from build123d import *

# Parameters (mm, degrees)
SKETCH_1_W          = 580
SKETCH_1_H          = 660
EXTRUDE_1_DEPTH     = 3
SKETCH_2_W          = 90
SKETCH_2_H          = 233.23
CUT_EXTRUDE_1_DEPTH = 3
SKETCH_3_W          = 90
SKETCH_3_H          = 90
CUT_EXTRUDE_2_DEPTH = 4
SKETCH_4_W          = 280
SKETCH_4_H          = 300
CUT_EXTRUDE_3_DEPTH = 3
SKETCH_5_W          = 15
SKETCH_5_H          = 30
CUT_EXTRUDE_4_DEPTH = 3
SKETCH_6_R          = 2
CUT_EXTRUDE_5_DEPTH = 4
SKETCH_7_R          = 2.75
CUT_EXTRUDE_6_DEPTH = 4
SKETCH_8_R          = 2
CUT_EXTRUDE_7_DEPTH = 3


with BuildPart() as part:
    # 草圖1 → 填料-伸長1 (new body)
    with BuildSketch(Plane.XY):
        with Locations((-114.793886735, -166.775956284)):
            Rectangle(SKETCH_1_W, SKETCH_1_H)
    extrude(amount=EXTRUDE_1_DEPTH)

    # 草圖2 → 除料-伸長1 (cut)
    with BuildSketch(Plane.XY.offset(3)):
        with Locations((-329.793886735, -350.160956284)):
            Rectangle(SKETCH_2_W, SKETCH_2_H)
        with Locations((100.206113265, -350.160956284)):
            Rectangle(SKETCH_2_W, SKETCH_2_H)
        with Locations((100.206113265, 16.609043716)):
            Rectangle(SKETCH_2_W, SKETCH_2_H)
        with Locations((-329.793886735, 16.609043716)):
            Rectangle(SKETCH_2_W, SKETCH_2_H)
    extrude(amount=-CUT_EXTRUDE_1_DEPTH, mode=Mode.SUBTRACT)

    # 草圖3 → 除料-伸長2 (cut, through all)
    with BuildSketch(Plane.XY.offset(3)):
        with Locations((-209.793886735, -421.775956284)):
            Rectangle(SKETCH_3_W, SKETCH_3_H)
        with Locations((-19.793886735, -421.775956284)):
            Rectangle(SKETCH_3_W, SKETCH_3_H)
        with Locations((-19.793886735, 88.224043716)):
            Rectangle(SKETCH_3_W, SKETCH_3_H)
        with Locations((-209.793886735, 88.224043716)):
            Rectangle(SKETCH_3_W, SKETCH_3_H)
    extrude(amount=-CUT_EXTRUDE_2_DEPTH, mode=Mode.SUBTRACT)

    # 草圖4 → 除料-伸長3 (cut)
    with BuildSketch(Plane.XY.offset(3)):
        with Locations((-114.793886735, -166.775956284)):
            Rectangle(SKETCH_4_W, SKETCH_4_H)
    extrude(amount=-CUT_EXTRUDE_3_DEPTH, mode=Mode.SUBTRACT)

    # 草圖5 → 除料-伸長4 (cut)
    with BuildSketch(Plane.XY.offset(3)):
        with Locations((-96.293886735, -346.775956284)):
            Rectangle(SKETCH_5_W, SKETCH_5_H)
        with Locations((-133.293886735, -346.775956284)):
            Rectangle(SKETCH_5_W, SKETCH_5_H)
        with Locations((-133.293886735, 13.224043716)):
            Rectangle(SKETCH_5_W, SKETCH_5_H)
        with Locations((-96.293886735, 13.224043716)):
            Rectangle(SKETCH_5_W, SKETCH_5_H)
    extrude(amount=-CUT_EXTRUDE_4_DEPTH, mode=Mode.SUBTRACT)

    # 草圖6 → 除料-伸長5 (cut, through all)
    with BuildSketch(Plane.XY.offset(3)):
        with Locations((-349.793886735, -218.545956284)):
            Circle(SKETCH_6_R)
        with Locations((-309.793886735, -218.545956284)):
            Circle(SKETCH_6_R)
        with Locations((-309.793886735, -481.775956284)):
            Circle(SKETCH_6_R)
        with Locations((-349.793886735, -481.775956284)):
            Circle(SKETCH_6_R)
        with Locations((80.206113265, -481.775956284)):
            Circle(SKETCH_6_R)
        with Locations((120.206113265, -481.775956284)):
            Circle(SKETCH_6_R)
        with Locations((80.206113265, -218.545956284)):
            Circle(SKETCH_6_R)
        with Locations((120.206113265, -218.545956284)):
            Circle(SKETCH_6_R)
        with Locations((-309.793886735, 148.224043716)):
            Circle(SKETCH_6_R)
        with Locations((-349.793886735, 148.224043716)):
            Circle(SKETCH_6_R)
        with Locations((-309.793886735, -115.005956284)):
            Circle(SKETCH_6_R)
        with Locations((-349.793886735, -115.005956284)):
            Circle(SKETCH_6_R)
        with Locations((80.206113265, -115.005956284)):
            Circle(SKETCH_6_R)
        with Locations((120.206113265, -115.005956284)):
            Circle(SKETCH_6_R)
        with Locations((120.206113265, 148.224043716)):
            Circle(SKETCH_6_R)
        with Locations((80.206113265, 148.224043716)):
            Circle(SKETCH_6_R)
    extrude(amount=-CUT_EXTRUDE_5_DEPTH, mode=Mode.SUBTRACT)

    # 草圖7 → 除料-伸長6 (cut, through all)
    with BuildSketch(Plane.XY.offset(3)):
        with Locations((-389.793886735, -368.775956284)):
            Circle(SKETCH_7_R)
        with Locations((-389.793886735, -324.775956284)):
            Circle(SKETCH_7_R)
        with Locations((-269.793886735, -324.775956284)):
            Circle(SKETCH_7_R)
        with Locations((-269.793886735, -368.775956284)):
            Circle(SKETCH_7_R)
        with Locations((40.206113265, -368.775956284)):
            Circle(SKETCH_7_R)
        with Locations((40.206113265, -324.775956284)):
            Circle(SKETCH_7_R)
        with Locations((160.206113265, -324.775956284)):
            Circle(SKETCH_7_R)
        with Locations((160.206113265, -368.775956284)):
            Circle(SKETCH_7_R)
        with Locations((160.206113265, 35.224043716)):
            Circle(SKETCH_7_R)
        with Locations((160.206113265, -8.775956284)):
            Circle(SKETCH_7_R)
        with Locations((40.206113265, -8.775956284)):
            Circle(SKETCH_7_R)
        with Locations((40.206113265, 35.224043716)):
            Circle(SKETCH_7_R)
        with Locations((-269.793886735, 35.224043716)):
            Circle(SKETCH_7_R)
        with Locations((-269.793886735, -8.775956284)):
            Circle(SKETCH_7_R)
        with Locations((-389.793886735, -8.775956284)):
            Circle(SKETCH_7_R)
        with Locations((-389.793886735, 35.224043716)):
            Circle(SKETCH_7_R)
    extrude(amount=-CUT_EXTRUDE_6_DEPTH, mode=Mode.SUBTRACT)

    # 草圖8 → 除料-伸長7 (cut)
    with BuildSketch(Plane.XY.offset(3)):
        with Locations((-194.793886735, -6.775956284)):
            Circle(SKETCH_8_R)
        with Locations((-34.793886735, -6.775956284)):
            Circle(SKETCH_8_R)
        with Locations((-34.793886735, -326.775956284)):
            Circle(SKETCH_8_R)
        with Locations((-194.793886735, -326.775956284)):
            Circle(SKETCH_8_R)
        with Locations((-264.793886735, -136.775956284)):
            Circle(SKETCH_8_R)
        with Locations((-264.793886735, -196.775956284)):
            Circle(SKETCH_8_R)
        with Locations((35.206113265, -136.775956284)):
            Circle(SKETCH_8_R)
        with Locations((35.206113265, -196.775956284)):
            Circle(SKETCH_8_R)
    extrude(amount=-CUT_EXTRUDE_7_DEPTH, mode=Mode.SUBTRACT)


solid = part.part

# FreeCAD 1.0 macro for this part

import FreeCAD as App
import Part
import Sketcher

doc = App.newDocument("Part")
body = doc.addObject("PartDesign::Body", "Body")

# Sketch on XY plane
sketch1 = body.newObject("Sketcher::SketchObject", "Sketch")
sketch1.AttachmentSupport = (doc.getObject("XY_Plane"), [""])
sketch1.MapMode = "FlatFace"
sketch1.addGeometry(Part.LineSegment(App.Vector(-405, 163, 0), App.Vector(-405, -497, 0)), False)
sketch1.addGeometry(Part.LineSegment(App.Vector(-405, -497, 0), App.Vector(175, -497, 0)), False)
sketch1.addGeometry(Part.LineSegment(App.Vector(175, -497, 0), App.Vector(175, 163, 0)), False)
sketch1.addGeometry(Part.LineSegment(App.Vector(175, 163, 0), App.Vector(-405, 163, 0)), False)
sketch1.addConstraint(Sketcher.Constraint("Coincident", 0, 2, 1, 1))
sketch1.addConstraint(Sketcher.Constraint("Coincident", 1, 2, 2, 1))
sketch1.addConstraint(Sketcher.Constraint("Coincident", 2, 2, 3, 1))
sketch1.addConstraint(Sketcher.Constraint("Coincident", 3, 2, 0, 1))
sketch1.addConstraint(Sketcher.Constraint("Vertical", 0))
sketch1.addConstraint(Sketcher.Constraint("Horizontal", 1))
sketch1.addConstraint(Sketcher.Constraint("Vertical", 2))
sketch1.addConstraint(Sketcher.Constraint("Horizontal", 3))
sketch1.addConstraint(Sketcher.Constraint("DistanceX", 1, 1, 1, 2, 580.0))
sketch1.addConstraint(Sketcher.Constraint("DistanceY", 0, 2, 0, 1, 660.0))
sketch1.addConstraint(Sketcher.Constraint("DistanceX", 0, 2, -1, 1, 404.793887))
sketch1.addConstraint(Sketcher.Constraint("DistanceY", 0, 2, -1, 1, 496.775956))
pad1 = body.newObject("PartDesign::Pad", "Pad")
pad1.Profile = sketch1
pad1.Length = 3

# Sketch on XY plane
sketch2 = body.newObject("Sketcher::SketchObject", "Sketch001")
sketch2.AttachmentSupport = (doc.getObject("XY_Plane"), [""])
sketch2.MapMode = "FlatFace"
sketch2.AttachmentOffset = App.Placement(App.Vector(0, 0, 3), App.Rotation())
sketch2.addGeometry(Part.LineSegment(App.Vector(-375, -234, 0), App.Vector(-375, -467, 0)), False)
sketch2.addGeometry(Part.LineSegment(App.Vector(-375, -467, 0), App.Vector(-285, -467, 0)), False)
sketch2.addGeometry(Part.LineSegment(App.Vector(-285, -467, 0), App.Vector(-285, -234, 0)), False)
sketch2.addGeometry(Part.LineSegment(App.Vector(-285, -234, 0), App.Vector(-375, -234, 0)), False)
sketch2.addGeometry(Part.LineSegment(App.Vector(55, -234, 0), App.Vector(55, -467, 0)), False)
sketch2.addGeometry(Part.LineSegment(App.Vector(55, -467, 0), App.Vector(145, -467, 0)), False)
sketch2.addGeometry(Part.LineSegment(App.Vector(145, -467, 0), App.Vector(145, -234, 0)), False)
sketch2.addGeometry(Part.LineSegment(App.Vector(145, -234, 0), App.Vector(55, -234, 0)), False)
sketch2.addGeometry(Part.LineSegment(App.Vector(55, 133, 0), App.Vector(55, -100, 0)), False)
sketch2.addGeometry(Part.LineSegment(App.Vector(55, -100, 0), App.Vector(145, -100, 0)), False)
sketch2.addGeometry(Part.LineSegment(App.Vector(145, -100, 0), App.Vector(145, 133, 0)), False)
sketch2.addGeometry(Part.LineSegment(App.Vector(145, 133, 0), App.Vector(55, 133, 0)), False)
sketch2.addGeometry(Part.LineSegment(App.Vector(-375, 133, 0), App.Vector(-375, -100, 0)), False)
sketch2.addGeometry(Part.LineSegment(App.Vector(-375, -100, 0), App.Vector(-285, -100, 0)), False)
sketch2.addGeometry(Part.LineSegment(App.Vector(-285, -100, 0), App.Vector(-285, 133, 0)), False)
sketch2.addGeometry(Part.LineSegment(App.Vector(-285, 133, 0), App.Vector(-375, 133, 0)), False)
sketch2.addConstraint(Sketcher.Constraint("Coincident", 0, 2, 1, 1))
sketch2.addConstraint(Sketcher.Constraint("Coincident", 1, 2, 2, 1))
sketch2.addConstraint(Sketcher.Constraint("Coincident", 2, 2, 3, 1))
sketch2.addConstraint(Sketcher.Constraint("Coincident", 3, 2, 0, 1))
sketch2.addConstraint(Sketcher.Constraint("Coincident", 4, 2, 5, 1))
sketch2.addConstraint(Sketcher.Constraint("Coincident", 5, 2, 6, 1))
sketch2.addConstraint(Sketcher.Constraint("Coincident", 6, 2, 7, 1))
sketch2.addConstraint(Sketcher.Constraint("Coincident", 7, 2, 4, 1))
sketch2.addConstraint(Sketcher.Constraint("Coincident", 8, 2, 9, 1))
sketch2.addConstraint(Sketcher.Constraint("Coincident", 9, 2, 10, 1))
sketch2.addConstraint(Sketcher.Constraint("Coincident", 10, 2, 11, 1))
sketch2.addConstraint(Sketcher.Constraint("Coincident", 11, 2, 8, 1))
sketch2.addConstraint(Sketcher.Constraint("Coincident", 12, 2, 13, 1))
sketch2.addConstraint(Sketcher.Constraint("Coincident", 13, 2, 14, 1))
sketch2.addConstraint(Sketcher.Constraint("Coincident", 14, 2, 15, 1))
sketch2.addConstraint(Sketcher.Constraint("Coincident", 15, 2, 12, 1))
sketch2.addConstraint(Sketcher.Constraint("Vertical", 0))
sketch2.addConstraint(Sketcher.Constraint("Horizontal", 1))
sketch2.addConstraint(Sketcher.Constraint("Vertical", 2))
sketch2.addConstraint(Sketcher.Constraint("Horizontal", 3))
sketch2.addConstraint(Sketcher.Constraint("Vertical", 4))
sketch2.addConstraint(Sketcher.Constraint("Horizontal", 5))
sketch2.addConstraint(Sketcher.Constraint("Vertical", 6))
sketch2.addConstraint(Sketcher.Constraint("Horizontal", 7))
sketch2.addConstraint(Sketcher.Constraint("Vertical", 8))
sketch2.addConstraint(Sketcher.Constraint("Horizontal", 9))
sketch2.addConstraint(Sketcher.Constraint("Vertical", 10))
sketch2.addConstraint(Sketcher.Constraint("Horizontal", 11))
sketch2.addConstraint(Sketcher.Constraint("Vertical", 12))
sketch2.addConstraint(Sketcher.Constraint("Horizontal", 13))
sketch2.addConstraint(Sketcher.Constraint("Vertical", 14))
sketch2.addConstraint(Sketcher.Constraint("Horizontal", 15))
sketch2.addConstraint(Sketcher.Constraint("Horizontal", 1, 2, 4, 2))
sketch2.addConstraint(Sketcher.Constraint("Horizontal", 3, 2, 6, 2))
sketch2.addConstraint(Sketcher.Constraint("Horizontal", 9, 2, 12, 2))
sketch2.addConstraint(Sketcher.Constraint("Horizontal", 11, 2, 14, 2))
sketch2.addConstraint(Sketcher.Constraint("Vertical", 7, 2, 8, 2))
sketch2.addConstraint(Sketcher.Constraint("Vertical", 6, 2, 9, 2))
sketch2.addConstraint(Sketcher.Constraint("Vertical", 3, 2, 12, 2))
sketch2.addConstraint(Sketcher.Constraint("Vertical", 2, 2, 13, 2))
sketch2.addConstraint(Sketcher.Constraint("Equal", 3, 5))
sketch2.addConstraint(Sketcher.Constraint("Equal", 6, 8))
sketch2.addConstraint(Sketcher.Constraint("DistanceX", 1, 1, 1, 2, 90.0))
sketch2.addConstraint(Sketcher.Constraint("DistanceX", 1, 2, 4, 2, 340.0))
sketch2.addConstraint(Sketcher.Constraint("DistanceY", 0, 2, 0, 1, 233.23))
sketch2.addConstraint(Sketcher.Constraint("DistanceY", 7, 2, 8, 2, 133.54))
sketch2.addConstraint(Sketcher.Constraint("DistanceX", 0, 2, -1, 1, 374.793887))
sketch2.addConstraint(Sketcher.Constraint("DistanceY", 0, 2, -1, 1, 466.775956))
pocket1 = body.newObject("PartDesign::Pocket", "Pocket")
pocket1.Profile = sketch2
pocket1.Length = 3

# Sketch on XY plane
sketch3 = body.newObject("Sketcher::SketchObject", "Sketch002")
sketch3.AttachmentSupport = (doc.getObject("XY_Plane"), [""])
sketch3.MapMode = "FlatFace"
sketch3.AttachmentOffset = App.Placement(App.Vector(0, 0, 3), App.Rotation())
sketch3.addGeometry(Part.LineSegment(App.Vector(-255, -377, 0), App.Vector(-255, -467, 0)), False)
sketch3.addGeometry(Part.LineSegment(App.Vector(-255, -467, 0), App.Vector(-165, -467, 0)), False)
sketch3.addGeometry(Part.LineSegment(App.Vector(-165, -467, 0), App.Vector(-165, -377, 0)), False)
sketch3.addGeometry(Part.LineSegment(App.Vector(-165, -377, 0), App.Vector(-255, -377, 0)), False)
sketch3.addGeometry(Part.LineSegment(App.Vector(-65, -377, 0), App.Vector(-65, -467, 0)), False)
sketch3.addGeometry(Part.LineSegment(App.Vector(-65, -467, 0), App.Vector(25, -467, 0)), False)
sketch3.addGeometry(Part.LineSegment(App.Vector(25, -467, 0), App.Vector(25, -377, 0)), False)
sketch3.addGeometry(Part.LineSegment(App.Vector(25, -377, 0), App.Vector(-65, -377, 0)), False)
sketch3.addGeometry(Part.LineSegment(App.Vector(-65, 133, 0), App.Vector(-65, 43, 0)), False)
sketch3.addGeometry(Part.LineSegment(App.Vector(-65, 43, 0), App.Vector(25, 43, 0)), False)
sketch3.addGeometry(Part.LineSegment(App.Vector(25, 43, 0), App.Vector(25, 133, 0)), False)
sketch3.addGeometry(Part.LineSegment(App.Vector(25, 133, 0), App.Vector(-65, 133, 0)), False)
sketch3.addGeometry(Part.LineSegment(App.Vector(-255, 133, 0), App.Vector(-255, 43, 0)), False)
sketch3.addGeometry(Part.LineSegment(App.Vector(-255, 43, 0), App.Vector(-165, 43, 0)), False)
sketch3.addGeometry(Part.LineSegment(App.Vector(-165, 43, 0), App.Vector(-165, 133, 0)), False)
sketch3.addGeometry(Part.LineSegment(App.Vector(-165, 133, 0), App.Vector(-255, 133, 0)), False)
sketch3.addConstraint(Sketcher.Constraint("Coincident", 0, 2, 1, 1))
sketch3.addConstraint(Sketcher.Constraint("Coincident", 1, 2, 2, 1))
sketch3.addConstraint(Sketcher.Constraint("Coincident", 2, 2, 3, 1))
sketch3.addConstraint(Sketcher.Constraint("Coincident", 3, 2, 0, 1))
sketch3.addConstraint(Sketcher.Constraint("Coincident", 4, 2, 5, 1))
sketch3.addConstraint(Sketcher.Constraint("Coincident", 5, 2, 6, 1))
sketch3.addConstraint(Sketcher.Constraint("Coincident", 6, 2, 7, 1))
sketch3.addConstraint(Sketcher.Constraint("Coincident", 7, 2, 4, 1))
sketch3.addConstraint(Sketcher.Constraint("Coincident", 8, 2, 9, 1))
sketch3.addConstraint(Sketcher.Constraint("Coincident", 9, 2, 10, 1))
sketch3.addConstraint(Sketcher.Constraint("Coincident", 10, 2, 11, 1))
sketch3.addConstraint(Sketcher.Constraint("Coincident", 11, 2, 8, 1))
sketch3.addConstraint(Sketcher.Constraint("Coincident", 12, 2, 13, 1))
sketch3.addConstraint(Sketcher.Constraint("Coincident", 13, 2, 14, 1))
sketch3.addConstraint(Sketcher.Constraint("Coincident", 14, 2, 15, 1))
sketch3.addConstraint(Sketcher.Constraint("Coincident", 15, 2, 12, 1))
sketch3.addConstraint(Sketcher.Constraint("Vertical", 0))
sketch3.addConstraint(Sketcher.Constraint("Horizontal", 1))
sketch3.addConstraint(Sketcher.Constraint("Vertical", 2))
sketch3.addConstraint(Sketcher.Constraint("Horizontal", 3))
sketch3.addConstraint(Sketcher.Constraint("Vertical", 4))
sketch3.addConstraint(Sketcher.Constraint("Horizontal", 5))
sketch3.addConstraint(Sketcher.Constraint("Vertical", 6))
sketch3.addConstraint(Sketcher.Constraint("Horizontal", 7))
sketch3.addConstraint(Sketcher.Constraint("Vertical", 8))
sketch3.addConstraint(Sketcher.Constraint("Horizontal", 9))
sketch3.addConstraint(Sketcher.Constraint("Vertical", 10))
sketch3.addConstraint(Sketcher.Constraint("Horizontal", 11))
sketch3.addConstraint(Sketcher.Constraint("Vertical", 12))
sketch3.addConstraint(Sketcher.Constraint("Horizontal", 13))
sketch3.addConstraint(Sketcher.Constraint("Vertical", 14))
sketch3.addConstraint(Sketcher.Constraint("Horizontal", 15))
sketch3.addConstraint(Sketcher.Constraint("Horizontal", 1, 2, 4, 2))
sketch3.addConstraint(Sketcher.Constraint("Horizontal", 3, 2, 6, 2))
sketch3.addConstraint(Sketcher.Constraint("Horizontal", 9, 2, 12, 2))
sketch3.addConstraint(Sketcher.Constraint("Horizontal", 11, 2, 14, 2))
sketch3.addConstraint(Sketcher.Constraint("Vertical", 7, 2, 8, 2))
sketch3.addConstraint(Sketcher.Constraint("Vertical", 6, 2, 9, 2))
sketch3.addConstraint(Sketcher.Constraint("Vertical", 3, 2, 12, 2))
sketch3.addConstraint(Sketcher.Constraint("Vertical", 2, 2, 13, 2))
sketch3.addConstraint(Sketcher.Constraint("Equal", 3, 5))
sketch3.addConstraint(Sketcher.Constraint("Equal", 15, 0))
sketch3.addConstraint(Sketcher.Constraint("Equal", 6, 8))
sketch3.addConstraint(Sketcher.Constraint("DistanceX", 1, 1, 1, 2, 90.0))
sketch3.addConstraint(Sketcher.Constraint("DistanceX", 1, 2, 4, 2, 100.0))
sketch3.addConstraint(Sketcher.Constraint("DistanceY", 7, 2, 8, 2, 420.0))
sketch3.addConstraint(Sketcher.Constraint("DistanceX", 0, 2, -1, 1, 254.793887))
sketch3.addConstraint(Sketcher.Constraint("DistanceY", 0, 2, -1, 1, 466.775956))
pocket2 = body.newObject("PartDesign::Pocket", "Pocket001")
pocket2.Profile = sketch3
pocket2.Type = "ThroughAll"

# Sketch on XY plane
sketch4 = body.newObject("Sketcher::SketchObject", "Sketch003")
sketch4.AttachmentSupport = (doc.getObject("XY_Plane"), [""])
sketch4.MapMode = "FlatFace"
sketch4.AttachmentOffset = App.Placement(App.Vector(0, 0, 3), App.Rotation())
sketch4.addGeometry(Part.LineSegment(App.Vector(-255, -17, 0), App.Vector(-255, -317, 0)), False)
sketch4.addGeometry(Part.LineSegment(App.Vector(-255, -317, 0), App.Vector(25, -317, 0)), False)
sketch4.addGeometry(Part.LineSegment(App.Vector(25, -317, 0), App.Vector(25, -17, 0)), False)
sketch4.addGeometry(Part.LineSegment(App.Vector(25, -17, 0), App.Vector(-255, -17, 0)), False)
sketch4.addConstraint(Sketcher.Constraint("Coincident", 0, 2, 1, 1))
sketch4.addConstraint(Sketcher.Constraint("Coincident", 1, 2, 2, 1))
sketch4.addConstraint(Sketcher.Constraint("Coincident", 2, 2, 3, 1))
sketch4.addConstraint(Sketcher.Constraint("Coincident", 3, 2, 0, 1))
sketch4.addConstraint(Sketcher.Constraint("Vertical", 0))
sketch4.addConstraint(Sketcher.Constraint("Horizontal", 1))
sketch4.addConstraint(Sketcher.Constraint("Vertical", 2))
sketch4.addConstraint(Sketcher.Constraint("Horizontal", 3))
sketch4.addConstraint(Sketcher.Constraint("DistanceX", 1, 1, 1, 2, 280.0))
sketch4.addConstraint(Sketcher.Constraint("DistanceY", 0, 2, 0, 1, 300.0))
sketch4.addConstraint(Sketcher.Constraint("DistanceX", 0, 2, -1, 1, 254.793887))
sketch4.addConstraint(Sketcher.Constraint("DistanceY", 0, 2, -1, 1, 316.775956))
pocket3 = body.newObject("PartDesign::Pocket", "Pocket002")
pocket3.Profile = sketch4
pocket3.Length = 3

# Sketch on XY plane
sketch5 = body.newObject("Sketcher::SketchObject", "Sketch004")
sketch5.AttachmentSupport = (doc.getObject("XY_Plane"), [""])
sketch5.MapMode = "FlatFace"
sketch5.AttachmentOffset = App.Placement(App.Vector(0, 0, 3), App.Rotation())
sketch5.addGeometry(Part.LineSegment(App.Vector(-104, -332, 0), App.Vector(-104, -362, 0)), False)
sketch5.addGeometry(Part.LineSegment(App.Vector(-104, -362, 0), App.Vector(-89, -362, 0)), False)
sketch5.addGeometry(Part.LineSegment(App.Vector(-89, -362, 0), App.Vector(-89, -332, 0)), False)
sketch5.addGeometry(Part.LineSegment(App.Vector(-89, -332, 0), App.Vector(-104, -332, 0)), False)
sketch5.addGeometry(Part.LineSegment(App.Vector(-141, -332, 0), App.Vector(-141, -362, 0)), False)
sketch5.addGeometry(Part.LineSegment(App.Vector(-141, -362, 0), App.Vector(-126, -362, 0)), False)
sketch5.addGeometry(Part.LineSegment(App.Vector(-126, -362, 0), App.Vector(-126, -332, 0)), False)
sketch5.addGeometry(Part.LineSegment(App.Vector(-126, -332, 0), App.Vector(-141, -332, 0)), False)
sketch5.addGeometry(Part.LineSegment(App.Vector(-141, 28, 0), App.Vector(-141, -2, 0)), False)
sketch5.addGeometry(Part.LineSegment(App.Vector(-141, -2, 0), App.Vector(-126, -2, 0)), False)
sketch5.addGeometry(Part.LineSegment(App.Vector(-126, -2, 0), App.Vector(-126, 28, 0)), False)
sketch5.addGeometry(Part.LineSegment(App.Vector(-126, 28, 0), App.Vector(-141, 28, 0)), False)
sketch5.addGeometry(Part.LineSegment(App.Vector(-104, 28, 0), App.Vector(-104, -2, 0)), False)
sketch5.addGeometry(Part.LineSegment(App.Vector(-104, -2, 0), App.Vector(-89, -2, 0)), False)
sketch5.addGeometry(Part.LineSegment(App.Vector(-89, -2, 0), App.Vector(-89, 28, 0)), False)
sketch5.addGeometry(Part.LineSegment(App.Vector(-89, 28, 0), App.Vector(-104, 28, 0)), False)
sketch5.addConstraint(Sketcher.Constraint("Coincident", 0, 2, 1, 1))
sketch5.addConstraint(Sketcher.Constraint("Coincident", 1, 2, 2, 1))
sketch5.addConstraint(Sketcher.Constraint("Coincident", 2, 2, 3, 1))
sketch5.addConstraint(Sketcher.Constraint("Coincident", 3, 2, 0, 1))
sketch5.addConstraint(Sketcher.Constraint("Coincident", 4, 2, 5, 1))
sketch5.addConstraint(Sketcher.Constraint("Coincident", 5, 2, 6, 1))
sketch5.addConstraint(Sketcher.Constraint("Coincident", 6, 2, 7, 1))
sketch5.addConstraint(Sketcher.Constraint("Coincident", 7, 2, 4, 1))
sketch5.addConstraint(Sketcher.Constraint("Coincident", 8, 2, 9, 1))
sketch5.addConstraint(Sketcher.Constraint("Coincident", 9, 2, 10, 1))
sketch5.addConstraint(Sketcher.Constraint("Coincident", 10, 2, 11, 1))
sketch5.addConstraint(Sketcher.Constraint("Coincident", 11, 2, 8, 1))
sketch5.addConstraint(Sketcher.Constraint("Coincident", 12, 2, 13, 1))
sketch5.addConstraint(Sketcher.Constraint("Coincident", 13, 2, 14, 1))
sketch5.addConstraint(Sketcher.Constraint("Coincident", 14, 2, 15, 1))
sketch5.addConstraint(Sketcher.Constraint("Coincident", 15, 2, 12, 1))
sketch5.addConstraint(Sketcher.Constraint("Vertical", 0))
sketch5.addConstraint(Sketcher.Constraint("Horizontal", 1))
sketch5.addConstraint(Sketcher.Constraint("Vertical", 2))
sketch5.addConstraint(Sketcher.Constraint("Horizontal", 3))
sketch5.addConstraint(Sketcher.Constraint("Vertical", 4))
sketch5.addConstraint(Sketcher.Constraint("Horizontal", 5))
sketch5.addConstraint(Sketcher.Constraint("Vertical", 6))
sketch5.addConstraint(Sketcher.Constraint("Horizontal", 7))
sketch5.addConstraint(Sketcher.Constraint("Vertical", 8))
sketch5.addConstraint(Sketcher.Constraint("Horizontal", 9))
sketch5.addConstraint(Sketcher.Constraint("Vertical", 10))
sketch5.addConstraint(Sketcher.Constraint("Horizontal", 11))
sketch5.addConstraint(Sketcher.Constraint("Vertical", 12))
sketch5.addConstraint(Sketcher.Constraint("Horizontal", 13))
sketch5.addConstraint(Sketcher.Constraint("Vertical", 14))
sketch5.addConstraint(Sketcher.Constraint("Horizontal", 15))
sketch5.addConstraint(Sketcher.Constraint("Horizontal", 1, 2, 4, 2))
sketch5.addConstraint(Sketcher.Constraint("Horizontal", 3, 2, 6, 2))
sketch5.addConstraint(Sketcher.Constraint("Horizontal", 9, 2, 12, 2))
sketch5.addConstraint(Sketcher.Constraint("Horizontal", 11, 2, 14, 2))
sketch5.addConstraint(Sketcher.Constraint("Vertical", 7, 2, 8, 2))
sketch5.addConstraint(Sketcher.Constraint("Vertical", 6, 2, 9, 2))
sketch5.addConstraint(Sketcher.Constraint("Vertical", 3, 2, 12, 2))
sketch5.addConstraint(Sketcher.Constraint("Vertical", 2, 2, 13, 2))
sketch5.addConstraint(Sketcher.Constraint("Equal", 3, 5))
sketch5.addConstraint(Sketcher.Constraint("Equal", 6, 8))
sketch5.addConstraint(Sketcher.Constraint("DistanceX", 1, 1, 1, 2, 15.0))
sketch5.addConstraint(Sketcher.Constraint("DistanceY", 0, 2, 0, 1, 30.0))
sketch5.addConstraint(Sketcher.Constraint("DistanceX", 4, 2, 0, 2, 37.0))
sketch5.addConstraint(Sketcher.Constraint("DistanceY", 7, 2, 8, 2, 330.0))
sketch5.addConstraint(Sketcher.Constraint("DistanceX", 0, 2, -1, 1, 103.793887))
sketch5.addConstraint(Sketcher.Constraint("DistanceY", 0, 2, -1, 1, 361.775956))
pocket4 = body.newObject("PartDesign::Pocket", "Pocket003")
pocket4.Profile = sketch5
pocket4.Length = 3

# Sketch on XY plane
sketch6 = body.newObject("Sketcher::SketchObject", "Sketch005")
sketch6.AttachmentSupport = (doc.getObject("XY_Plane"), [""])
sketch6.MapMode = "FlatFace"
sketch6.AttachmentOffset = App.Placement(App.Vector(0, 0, 3), App.Rotation())
sketch6.addGeometry(Part.Circle(App.Vector(-349.8, -218.5, 0), App.Vector(0, 0, 1), 2), False)
sketch6.addGeometry(Part.Circle(App.Vector(-309.8, -218.5, 0), App.Vector(0, 0, 1), 2), False)
sketch6.addGeometry(Part.Circle(App.Vector(-309.8, -481.8, 0), App.Vector(0, 0, 1), 2), False)
sketch6.addGeometry(Part.Circle(App.Vector(-349.8, -481.8, 0), App.Vector(0, 0, 1), 2), False)
sketch6.addGeometry(Part.Circle(App.Vector(80.2, -481.8, 0), App.Vector(0, 0, 1), 2), False)
sketch6.addGeometry(Part.Circle(App.Vector(120.2, -481.8, 0), App.Vector(0, 0, 1), 2), False)
sketch6.addGeometry(Part.Circle(App.Vector(80.2, -218.5, 0), App.Vector(0, 0, 1), 2), False)
sketch6.addGeometry(Part.Circle(App.Vector(120.2, -218.5, 0), App.Vector(0, 0, 1), 2), False)
sketch6.addGeometry(Part.Circle(App.Vector(-309.8, 148.2, 0), App.Vector(0, 0, 1), 2), False)
sketch6.addGeometry(Part.Circle(App.Vector(-349.8, 148.2, 0), App.Vector(0, 0, 1), 2), False)
sketch6.addGeometry(Part.Circle(App.Vector(-309.8, -115, 0), App.Vector(0, 0, 1), 2), False)
sketch6.addGeometry(Part.Circle(App.Vector(-349.8, -115, 0), App.Vector(0, 0, 1), 2), False)
sketch6.addGeometry(Part.Circle(App.Vector(80.2, -115, 0), App.Vector(0, 0, 1), 2), False)
sketch6.addGeometry(Part.Circle(App.Vector(120.2, -115, 0), App.Vector(0, 0, 1), 2), False)
sketch6.addGeometry(Part.Circle(App.Vector(120.2, 148.2, 0), App.Vector(0, 0, 1), 2), False)
sketch6.addGeometry(Part.Circle(App.Vector(80.2, 148.2, 0), App.Vector(0, 0, 1), 2), False)
sketch6.addConstraint(Sketcher.Constraint("Equal", 0, 1))
sketch6.addConstraint(Sketcher.Constraint("Equal", 1, 2))
sketch6.addConstraint(Sketcher.Constraint("Equal", 2, 3))
sketch6.addConstraint(Sketcher.Constraint("Equal", 3, 4))
sketch6.addConstraint(Sketcher.Constraint("Equal", 4, 5))
sketch6.addConstraint(Sketcher.Constraint("Equal", 5, 6))
sketch6.addConstraint(Sketcher.Constraint("Equal", 6, 7))
sketch6.addConstraint(Sketcher.Constraint("Equal", 7, 8))
sketch6.addConstraint(Sketcher.Constraint("Equal", 8, 9))
sketch6.addConstraint(Sketcher.Constraint("Equal", 9, 10))
sketch6.addConstraint(Sketcher.Constraint("Equal", 10, 11))
sketch6.addConstraint(Sketcher.Constraint("Equal", 11, 12))
sketch6.addConstraint(Sketcher.Constraint("Equal", 12, 13))
sketch6.addConstraint(Sketcher.Constraint("Equal", 13, 14))
sketch6.addConstraint(Sketcher.Constraint("Equal", 14, 15))
sketch6.addConstraint(Sketcher.Constraint("Horizontal", 0, 3, 1, 3))
sketch6.addConstraint(Sketcher.Constraint("Horizontal", 2, 3, 3, 3))
sketch6.addConstraint(Sketcher.Constraint("Horizontal", 3, 3, 4, 3))
sketch6.addConstraint(Sketcher.Constraint("Horizontal", 4, 3, 5, 3))
sketch6.addConstraint(Sketcher.Constraint("Horizontal", 1, 3, 6, 3))
sketch6.addConstraint(Sketcher.Constraint("Horizontal", 6, 3, 7, 3))
sketch6.addConstraint(Sketcher.Constraint("Horizontal", 8, 3, 9, 3))
sketch6.addConstraint(Sketcher.Constraint("Horizontal", 10, 3, 11, 3))
sketch6.addConstraint(Sketcher.Constraint("Horizontal", 11, 3, 12, 3))
sketch6.addConstraint(Sketcher.Constraint("Horizontal", 12, 3, 13, 3))
sketch6.addConstraint(Sketcher.Constraint("Horizontal", 9, 3, 14, 3))
sketch6.addConstraint(Sketcher.Constraint("Horizontal", 14, 3, 15, 3))
sketch6.addConstraint(Sketcher.Constraint("Vertical", 1, 3, 2, 3))
sketch6.addConstraint(Sketcher.Constraint("Vertical", 0, 3, 3, 3))
sketch6.addConstraint(Sketcher.Constraint("Vertical", 4, 3, 6, 3))
sketch6.addConstraint(Sketcher.Constraint("Vertical", 5, 3, 7, 3))
sketch6.addConstraint(Sketcher.Constraint("Vertical", 2, 3, 8, 3))
sketch6.addConstraint(Sketcher.Constraint("Vertical", 3, 3, 9, 3))
sketch6.addConstraint(Sketcher.Constraint("Vertical", 8, 3, 10, 3))
sketch6.addConstraint(Sketcher.Constraint("Vertical", 9, 3, 11, 3))
sketch6.addConstraint(Sketcher.Constraint("Vertical", 6, 3, 12, 3))
sketch6.addConstraint(Sketcher.Constraint("Vertical", 7, 3, 13, 3))
sketch6.addConstraint(Sketcher.Constraint("Vertical", 13, 3, 14, 3))
sketch6.addConstraint(Sketcher.Constraint("Vertical", 12, 3, 15, 3))
sketch6.addConstraint(Sketcher.Constraint("Diameter", 0, 4.0))
sketch6.addConstraint(Sketcher.Constraint("DistanceX", 0, 3, 1, 3, 40.0))
sketch6.addConstraint(Sketcher.Constraint("DistanceX", 2, 3, 4, 3, 390.0))
sketch6.addConstraint(Sketcher.Constraint("DistanceX", 4, 3, 5, 3, 40.0))
sketch6.addConstraint(Sketcher.Constraint("DistanceY", 2, 3, 8, 3, 630.0))
sketch6.addConstraint(Sketcher.Constraint("DistanceY", 2, 3, 1, 3, 263.23))
sketch6.addConstraint(Sketcher.Constraint("DistanceY", 1, 3, 10, 3, 103.54))
sketch6.addConstraint(Sketcher.Constraint("DistanceX", 0, 3, -1, 1, 349.793887))
sketch6.addConstraint(Sketcher.Constraint("DistanceY", 0, 3, -1, 1, 218.545956))
pocket5 = body.newObject("PartDesign::Pocket", "Pocket004")
pocket5.Profile = sketch6
pocket5.Type = "ThroughAll"

# Sketch on XY plane
sketch7 = body.newObject("Sketcher::SketchObject", "Sketch006")
sketch7.AttachmentSupport = (doc.getObject("XY_Plane"), [""])
sketch7.MapMode = "FlatFace"
sketch7.AttachmentOffset = App.Placement(App.Vector(0, 0, 3), App.Rotation())
sketch7.addGeometry(Part.Circle(App.Vector(-389.8, -368.8, 0), App.Vector(0, 0, 1), 2.8), False)
sketch7.addGeometry(Part.Circle(App.Vector(-389.8, -324.8, 0), App.Vector(0, 0, 1), 2.8), False)
sketch7.addGeometry(Part.Circle(App.Vector(-269.8, -324.8, 0), App.Vector(0, 0, 1), 2.8), False)
sketch7.addGeometry(Part.Circle(App.Vector(-269.8, -368.8, 0), App.Vector(0, 0, 1), 2.8), False)
sketch7.addGeometry(Part.Circle(App.Vector(40.2, -368.8, 0), App.Vector(0, 0, 1), 2.8), False)
sketch7.addGeometry(Part.Circle(App.Vector(40.2, -324.8, 0), App.Vector(0, 0, 1), 2.8), False)
sketch7.addGeometry(Part.Circle(App.Vector(160.2, -324.8, 0), App.Vector(0, 0, 1), 2.8), False)
sketch7.addGeometry(Part.Circle(App.Vector(160.2, -368.8, 0), App.Vector(0, 0, 1), 2.8), False)
sketch7.addGeometry(Part.Circle(App.Vector(160.2, 35.2, 0), App.Vector(0, 0, 1), 2.8), False)
sketch7.addGeometry(Part.Circle(App.Vector(160.2, -8.8, 0), App.Vector(0, 0, 1), 2.8), False)
sketch7.addGeometry(Part.Circle(App.Vector(40.2, -8.8, 0), App.Vector(0, 0, 1), 2.8), False)
sketch7.addGeometry(Part.Circle(App.Vector(40.2, 35.2, 0), App.Vector(0, 0, 1), 2.8), False)
sketch7.addGeometry(Part.Circle(App.Vector(-269.8, 35.2, 0), App.Vector(0, 0, 1), 2.8), False)
sketch7.addGeometry(Part.Circle(App.Vector(-269.8, -8.8, 0), App.Vector(0, 0, 1), 2.8), False)
sketch7.addGeometry(Part.Circle(App.Vector(-389.8, -8.8, 0), App.Vector(0, 0, 1), 2.8), False)
sketch7.addGeometry(Part.Circle(App.Vector(-389.8, 35.2, 0), App.Vector(0, 0, 1), 2.8), False)
sketch7.addConstraint(Sketcher.Constraint("Equal", 0, 1))
sketch7.addConstraint(Sketcher.Constraint("Equal", 1, 2))
sketch7.addConstraint(Sketcher.Constraint("Equal", 2, 3))
sketch7.addConstraint(Sketcher.Constraint("Equal", 3, 4))
sketch7.addConstraint(Sketcher.Constraint("Equal", 4, 5))
sketch7.addConstraint(Sketcher.Constraint("Equal", 5, 6))
sketch7.addConstraint(Sketcher.Constraint("Equal", 6, 7))
sketch7.addConstraint(Sketcher.Constraint("Equal", 7, 8))
sketch7.addConstraint(Sketcher.Constraint("Equal", 8, 9))
sketch7.addConstraint(Sketcher.Constraint("Equal", 9, 10))
sketch7.addConstraint(Sketcher.Constraint("Equal", 10, 11))
sketch7.addConstraint(Sketcher.Constraint("Equal", 11, 12))
sketch7.addConstraint(Sketcher.Constraint("Equal", 12, 13))
sketch7.addConstraint(Sketcher.Constraint("Equal", 13, 14))
sketch7.addConstraint(Sketcher.Constraint("Equal", 14, 15))
sketch7.addConstraint(Sketcher.Constraint("Horizontal", 1, 3, 2, 3))
sketch7.addConstraint(Sketcher.Constraint("Horizontal", 0, 3, 3, 3))
sketch7.addConstraint(Sketcher.Constraint("Horizontal", 3, 3, 4, 3))
sketch7.addConstraint(Sketcher.Constraint("Horizontal", 2, 3, 5, 3))
sketch7.addConstraint(Sketcher.Constraint("Horizontal", 5, 3, 6, 3))
sketch7.addConstraint(Sketcher.Constraint("Horizontal", 4, 3, 7, 3))
sketch7.addConstraint(Sketcher.Constraint("Horizontal", 9, 3, 10, 3))
sketch7.addConstraint(Sketcher.Constraint("Horizontal", 8, 3, 11, 3))
sketch7.addConstraint(Sketcher.Constraint("Horizontal", 11, 3, 12, 3))
sketch7.addConstraint(Sketcher.Constraint("Horizontal", 10, 3, 13, 3))
sketch7.addConstraint(Sketcher.Constraint("Horizontal", 13, 3, 14, 3))
sketch7.addConstraint(Sketcher.Constraint("Horizontal", 12, 3, 15, 3))
sketch7.addConstraint(Sketcher.Constraint("Vertical", 0, 3, 1, 3))
sketch7.addConstraint(Sketcher.Constraint("Vertical", 2, 3, 3, 3))
sketch7.addConstraint(Sketcher.Constraint("Vertical", 4, 3, 5, 3))
sketch7.addConstraint(Sketcher.Constraint("Vertical", 6, 3, 7, 3))
sketch7.addConstraint(Sketcher.Constraint("Vertical", 7, 3, 8, 3))
sketch7.addConstraint(Sketcher.Constraint("Vertical", 8, 3, 9, 3))
sketch7.addConstraint(Sketcher.Constraint("Vertical", 5, 3, 10, 3))
sketch7.addConstraint(Sketcher.Constraint("Vertical", 10, 3, 11, 3))
sketch7.addConstraint(Sketcher.Constraint("Vertical", 3, 3, 12, 3))
sketch7.addConstraint(Sketcher.Constraint("Vertical", 12, 3, 13, 3))
sketch7.addConstraint(Sketcher.Constraint("Vertical", 1, 3, 14, 3))
sketch7.addConstraint(Sketcher.Constraint("Vertical", 14, 3, 15, 3))
sketch7.addConstraint(Sketcher.Constraint("Diameter", 0, 5.5))
sketch7.addConstraint(Sketcher.Constraint("DistanceY", 0, 3, 1, 3, 44.0))
sketch7.addConstraint(Sketcher.Constraint("DistanceX", 1, 3, 2, 3, 120.0))
sketch7.addConstraint(Sketcher.Constraint("DistanceX", 3, 3, 4, 3, 310.0))
sketch7.addConstraint(Sketcher.Constraint("DistanceX", 5, 3, 6, 3, 120.0))
sketch7.addConstraint(Sketcher.Constraint("DistanceY", 6, 3, 8, 3, 360.0))
sketch7.addConstraint(Sketcher.Constraint("DistanceY", 9, 3, 8, 3, 44.0))
sketch7.addConstraint(Sketcher.Constraint("DistanceX", 0, 3, -1, 1, 389.793887))
sketch7.addConstraint(Sketcher.Constraint("DistanceY", 0, 3, -1, 1, 368.775956))
pocket6 = body.newObject("PartDesign::Pocket", "Pocket005")
pocket6.Profile = sketch7
pocket6.Type = "ThroughAll"

# Sketch on XY plane
sketch8 = body.newObject("Sketcher::SketchObject", "Sketch007")
sketch8.AttachmentSupport = (doc.getObject("XY_Plane"), [""])
sketch8.MapMode = "FlatFace"
sketch8.AttachmentOffset = App.Placement(App.Vector(0, 0, 3), App.Rotation())
sketch8.addGeometry(Part.Circle(App.Vector(-194.8, -6.8, 0), App.Vector(0, 0, 1), 2), False)
sketch8.addGeometry(Part.Circle(App.Vector(-34.8, -6.8, 0), App.Vector(0, 0, 1), 2), False)
sketch8.addGeometry(Part.Circle(App.Vector(-34.8, -326.8, 0), App.Vector(0, 0, 1), 2), False)
sketch8.addGeometry(Part.Circle(App.Vector(-194.8, -326.8, 0), App.Vector(0, 0, 1), 2), False)
sketch8.addGeometry(Part.Circle(App.Vector(-264.8, -136.8, 0), App.Vector(0, 0, 1), 2), False)
sketch8.addGeometry(Part.Circle(App.Vector(-264.8, -196.8, 0), App.Vector(0, 0, 1), 2), False)
sketch8.addGeometry(Part.Circle(App.Vector(35.2, -136.8, 0), App.Vector(0, 0, 1), 2), False)
sketch8.addGeometry(Part.Circle(App.Vector(35.2, -196.8, 0), App.Vector(0, 0, 1), 2), False)
sketch8.addConstraint(Sketcher.Constraint("Equal", 0, 1))
sketch8.addConstraint(Sketcher.Constraint("Equal", 1, 2))
sketch8.addConstraint(Sketcher.Constraint("Equal", 2, 3))
sketch8.addConstraint(Sketcher.Constraint("Equal", 3, 4))
sketch8.addConstraint(Sketcher.Constraint("Equal", 4, 5))
sketch8.addConstraint(Sketcher.Constraint("Equal", 5, 6))
sketch8.addConstraint(Sketcher.Constraint("Equal", 6, 7))
sketch8.addConstraint(Sketcher.Constraint("Horizontal", 0, 3, 1, 3))
sketch8.addConstraint(Sketcher.Constraint("Horizontal", 2, 3, 3, 3))
sketch8.addConstraint(Sketcher.Constraint("Horizontal", 4, 3, 6, 3))
sketch8.addConstraint(Sketcher.Constraint("Horizontal", 5, 3, 7, 3))
sketch8.addConstraint(Sketcher.Constraint("Vertical", 1, 3, 2, 3))
sketch8.addConstraint(Sketcher.Constraint("Vertical", 0, 3, 3, 3))
sketch8.addConstraint(Sketcher.Constraint("Vertical", 4, 3, 5, 3))
sketch8.addConstraint(Sketcher.Constraint("Vertical", 6, 3, 7, 3))
sketch8.addConstraint(Sketcher.Constraint("Diameter", 0, 4.0))
sketch8.addConstraint(Sketcher.Constraint("DistanceX", 0, 3, 1, 3, 160.0))
sketch8.addConstraint(Sketcher.Constraint("DistanceY", 2, 3, 1, 3, 320.0))
sketch8.addConstraint(Sketcher.Constraint("DistanceX", 4, 3, 0, 3, 70.0))
sketch8.addConstraint(Sketcher.Constraint("DistanceY", 4, 3, 0, 3, 130.0))
sketch8.addConstraint(Sketcher.Constraint("DistanceY", 5, 3, 4, 3, 60.0))
sketch8.addConstraint(Sketcher.Constraint("DistanceX", 1, 3, 6, 3, 70.0))
sketch8.addConstraint(Sketcher.Constraint("DistanceX", 0, 3, -1, 1, 194.793887))
sketch8.addConstraint(Sketcher.Constraint("DistanceY", 0, 3, -1, 1, 6.775956))
pocket7 = body.newObject("PartDesign::Pocket", "Pocket006")
pocket7.Profile = sketch8
pocket7.Length = 3

doc.recompute()
